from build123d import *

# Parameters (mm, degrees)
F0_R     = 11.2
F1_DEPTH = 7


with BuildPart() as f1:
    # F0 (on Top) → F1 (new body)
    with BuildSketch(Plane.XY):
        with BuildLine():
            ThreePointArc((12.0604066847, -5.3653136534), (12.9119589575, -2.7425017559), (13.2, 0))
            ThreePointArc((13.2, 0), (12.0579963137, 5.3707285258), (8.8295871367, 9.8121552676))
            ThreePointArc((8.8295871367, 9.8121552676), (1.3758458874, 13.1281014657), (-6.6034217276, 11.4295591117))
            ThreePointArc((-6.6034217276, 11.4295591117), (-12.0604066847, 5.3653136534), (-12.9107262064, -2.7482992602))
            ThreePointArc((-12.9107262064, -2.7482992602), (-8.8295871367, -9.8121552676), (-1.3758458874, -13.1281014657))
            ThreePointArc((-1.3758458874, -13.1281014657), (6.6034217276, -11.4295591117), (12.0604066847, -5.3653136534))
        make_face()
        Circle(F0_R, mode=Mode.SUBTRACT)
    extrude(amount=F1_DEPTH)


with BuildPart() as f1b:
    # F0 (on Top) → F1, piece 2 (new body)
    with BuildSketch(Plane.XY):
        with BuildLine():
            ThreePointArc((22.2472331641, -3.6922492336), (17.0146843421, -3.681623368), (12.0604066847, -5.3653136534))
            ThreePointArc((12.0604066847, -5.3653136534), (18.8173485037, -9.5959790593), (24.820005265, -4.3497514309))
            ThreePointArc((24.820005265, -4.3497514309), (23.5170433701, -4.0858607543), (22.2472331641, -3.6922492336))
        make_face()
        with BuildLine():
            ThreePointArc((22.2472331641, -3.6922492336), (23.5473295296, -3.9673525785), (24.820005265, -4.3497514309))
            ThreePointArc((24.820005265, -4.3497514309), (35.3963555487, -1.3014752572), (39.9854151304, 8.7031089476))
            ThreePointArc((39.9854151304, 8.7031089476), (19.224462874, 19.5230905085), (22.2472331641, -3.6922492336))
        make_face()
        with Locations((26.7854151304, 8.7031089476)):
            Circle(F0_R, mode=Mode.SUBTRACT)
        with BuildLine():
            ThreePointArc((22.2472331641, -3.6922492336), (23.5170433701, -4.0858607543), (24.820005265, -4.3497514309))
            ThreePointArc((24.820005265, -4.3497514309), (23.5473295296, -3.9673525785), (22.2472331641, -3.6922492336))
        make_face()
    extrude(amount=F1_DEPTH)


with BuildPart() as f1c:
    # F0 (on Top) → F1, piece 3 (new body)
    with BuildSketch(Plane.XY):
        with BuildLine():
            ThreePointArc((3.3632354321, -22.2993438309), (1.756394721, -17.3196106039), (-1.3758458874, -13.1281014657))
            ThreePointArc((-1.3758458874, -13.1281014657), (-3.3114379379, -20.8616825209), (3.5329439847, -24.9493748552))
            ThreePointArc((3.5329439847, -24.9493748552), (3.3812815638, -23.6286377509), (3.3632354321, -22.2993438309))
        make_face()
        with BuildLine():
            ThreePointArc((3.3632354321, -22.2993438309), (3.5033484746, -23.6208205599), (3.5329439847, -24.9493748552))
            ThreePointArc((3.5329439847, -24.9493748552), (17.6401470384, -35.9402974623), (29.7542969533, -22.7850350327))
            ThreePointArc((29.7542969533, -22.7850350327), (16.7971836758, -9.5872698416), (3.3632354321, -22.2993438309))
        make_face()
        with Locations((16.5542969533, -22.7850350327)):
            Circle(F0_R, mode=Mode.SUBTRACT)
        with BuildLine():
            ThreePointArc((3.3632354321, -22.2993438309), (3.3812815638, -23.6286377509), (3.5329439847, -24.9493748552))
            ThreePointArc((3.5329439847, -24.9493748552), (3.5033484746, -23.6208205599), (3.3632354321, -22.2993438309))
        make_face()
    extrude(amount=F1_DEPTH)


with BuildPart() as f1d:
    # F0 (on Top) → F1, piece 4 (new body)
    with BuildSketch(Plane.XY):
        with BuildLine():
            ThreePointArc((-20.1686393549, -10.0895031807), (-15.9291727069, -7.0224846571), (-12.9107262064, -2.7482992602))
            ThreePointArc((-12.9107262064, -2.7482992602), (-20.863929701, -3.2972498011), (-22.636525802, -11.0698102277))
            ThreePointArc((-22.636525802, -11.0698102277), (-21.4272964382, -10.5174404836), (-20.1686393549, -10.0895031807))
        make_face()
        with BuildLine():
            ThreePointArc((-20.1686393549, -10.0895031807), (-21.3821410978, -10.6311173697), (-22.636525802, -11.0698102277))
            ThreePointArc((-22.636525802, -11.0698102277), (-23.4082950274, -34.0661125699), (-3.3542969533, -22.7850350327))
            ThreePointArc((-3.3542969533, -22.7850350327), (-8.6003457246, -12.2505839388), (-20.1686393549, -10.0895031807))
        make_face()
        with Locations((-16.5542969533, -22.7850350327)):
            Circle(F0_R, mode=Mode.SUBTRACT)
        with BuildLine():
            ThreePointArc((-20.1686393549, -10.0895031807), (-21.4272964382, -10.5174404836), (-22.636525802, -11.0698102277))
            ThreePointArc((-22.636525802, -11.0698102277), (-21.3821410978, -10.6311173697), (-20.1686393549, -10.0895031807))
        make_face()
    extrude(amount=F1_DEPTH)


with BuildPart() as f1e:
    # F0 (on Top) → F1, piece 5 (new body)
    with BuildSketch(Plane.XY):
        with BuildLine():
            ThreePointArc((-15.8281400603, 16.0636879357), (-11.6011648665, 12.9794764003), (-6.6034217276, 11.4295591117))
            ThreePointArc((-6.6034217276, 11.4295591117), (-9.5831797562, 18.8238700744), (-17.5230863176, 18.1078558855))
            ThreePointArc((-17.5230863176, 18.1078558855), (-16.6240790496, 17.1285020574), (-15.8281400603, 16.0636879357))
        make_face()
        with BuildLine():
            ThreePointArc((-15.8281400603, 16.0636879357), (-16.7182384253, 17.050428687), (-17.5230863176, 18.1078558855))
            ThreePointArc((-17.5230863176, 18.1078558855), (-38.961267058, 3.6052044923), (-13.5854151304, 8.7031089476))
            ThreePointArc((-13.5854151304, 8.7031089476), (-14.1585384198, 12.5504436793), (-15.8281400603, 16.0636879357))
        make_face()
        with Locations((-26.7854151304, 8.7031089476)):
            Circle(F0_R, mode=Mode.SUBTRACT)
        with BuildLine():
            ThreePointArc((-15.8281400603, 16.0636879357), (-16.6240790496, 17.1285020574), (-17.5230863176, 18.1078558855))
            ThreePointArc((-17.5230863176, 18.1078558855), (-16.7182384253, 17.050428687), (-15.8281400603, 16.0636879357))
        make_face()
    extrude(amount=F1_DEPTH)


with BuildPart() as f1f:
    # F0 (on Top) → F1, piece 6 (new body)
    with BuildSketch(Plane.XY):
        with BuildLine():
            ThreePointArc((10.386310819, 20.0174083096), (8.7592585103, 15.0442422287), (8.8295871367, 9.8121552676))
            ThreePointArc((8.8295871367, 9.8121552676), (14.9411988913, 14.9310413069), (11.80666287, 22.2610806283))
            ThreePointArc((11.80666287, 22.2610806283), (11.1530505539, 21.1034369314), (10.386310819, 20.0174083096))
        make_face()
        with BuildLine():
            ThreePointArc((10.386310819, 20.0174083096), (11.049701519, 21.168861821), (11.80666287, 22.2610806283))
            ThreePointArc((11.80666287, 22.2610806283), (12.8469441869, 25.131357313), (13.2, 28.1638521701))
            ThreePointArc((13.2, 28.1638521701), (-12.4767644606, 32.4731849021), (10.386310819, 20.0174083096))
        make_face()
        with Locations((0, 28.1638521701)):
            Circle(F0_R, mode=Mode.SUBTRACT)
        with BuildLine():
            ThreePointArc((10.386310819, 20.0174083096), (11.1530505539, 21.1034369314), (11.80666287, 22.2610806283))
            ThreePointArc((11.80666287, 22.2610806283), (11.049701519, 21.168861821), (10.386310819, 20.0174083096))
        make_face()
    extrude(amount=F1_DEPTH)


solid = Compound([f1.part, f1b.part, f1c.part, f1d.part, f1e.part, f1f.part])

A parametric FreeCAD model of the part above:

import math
import FreeCAD as App
import Part
import Sketcher

V = App.Vector
Q = App.Units.Quantity

doc = App.newDocument("Part")
body = doc.addObject("PartDesign::Body", "Body")

# Sketch on XY plane
sketch1 = doc.addObject("Sketcher::SketchObject", "Sketch")
body.addObject(sketch1)
sketch1.AttachmentSupport = (doc.XY_Plane, [""])
sketch1.MapMode = "FlatFace"
sketch1.addGeometry([
    Part.ArcOfCircle(Part.Circle(V(0, 0, 0), V(0, 0, 1), 13), math.radians(-24), math.radians(0)),  # 0
    Part.ArcOfCircle(Part.Circle(V(0, 0, 0), V(0, 0, 1), 13), math.radians(0), math.radians(48)),  # 1
    Part.ArcOfCircle(Part.Circle(V(0, 0, 0), V(0, 0, 1), 13), math.radians(48), math.radians(120)),  # 2
    Part.ArcOfCircle(Part.Circle(V(0, 0, 0), V(0, 0, 1), 13), math.radians(120), math.radians(192)),  # 3
    Part.ArcOfCircle(Part.Circle(V(0, 0, 0), V(0, 0, 1), 13), math.radians(-168), math.radians(-96)),  # 4
    Part.ArcOfCircle(Part.Circle(V(0, 0, 0), V(0, 0, 1), 13), math.radians(-96), math.radians(-24)),  # 5
    Part.Circle(V(0, 0, 0), V(0, 0, 1), 11),  # 6
], False)
sketch1.addConstraint([
    Sketcher.Constraint("Tangent", 0, 2, 1, 1),
    Sketcher.Constraint("Tangent", 1, 2, 2, 1),
    Sketcher.Constraint("Tangent", 2, 2, 3, 1),
    Sketcher.Constraint("Tangent", 3, 2, 4, 1),
    Sketcher.Constraint("Tangent", 4, 2, 5, 1),
    Sketcher.Constraint("Tangent", 5, 2, 0, 1),
    Sketcher.Constraint("Coincident", 0, 3, -1, 1),
    Sketcher.Constraint("Coincident", 2, 3, -1, 1),
    Sketcher.Constraint("Coincident", 6, 3, -1, 1),
    Sketcher.Constraint("Equal", 2, 3),
    Sketcher.Constraint("PointOnObject", 0, 2, -1),
    Sketcher.Constraint("Diameter", 6, Q("22.4 mm")),
    Sketcher.Constraint("Radius", 0, Q("13.2 mm")),
    Sketcher.Constraint("DistanceY", 3, 2, -1, 1, Q("2.748299 mm")),
    Sketcher.Constraint("DistanceY", 4, 2, -1, 1, Q("13.128101 mm")),
    Sketcher.Constraint("DistanceX", 2, 2, -1, 1, Q("6.603422 mm")),
    Sketcher.Constraint("DistanceX", -1, 1, 1, 2, Q("8.829587 mm")),
    Sketcher.Constraint("DistanceX", -1, 1, 5, 2, Q("12.060407 mm")),
])
pad1 = doc.addObject("PartDesign::Pad", "Pad")
body.addObject(pad1)
pad1.Profile = sketch1
pad1.Length = 7
body2 = doc.addObject("PartDesign::Body", "Body001")

# Sketch on XY plane
sketch2 = doc.addObject("Sketcher::SketchObject", "Sketch001")
body2.addObject(sketch2)
sketch2.AttachmentSupport = (doc.getObject("XY_Plane001"), [""])
sketch2.MapMode = "FlatFace"
sketch2.addGeometry([
    Part.ArcOfCircle(Part.Circle(V(20, -19, 0), V(0, 0, 1), 16), math.radians(80), math.radians(118)),  # 0
    Part.ArcOfCircle(Part.Circle(V(18, -3, 0), V(0, 0, 1), 7), math.radians(-159), math.radians(-12)),  # 1
    Part.ArcOfCircle(Part.Circle(V(27, 9, 0), V(0, 0, 1), 13), math.radians(-99), math.radians(0)),  # 2
    Part.ArcOfCircle(Part.Circle(V(27, 9, 0), V(0, 0, 1), 13), math.radians(0), math.radians(250)),  # 3
    Part.Circle(V(27, 9, 0), V(0, 0, 1), 11),  # 4
], False)
sketch2.addConstraint([
    Sketcher.Constraint("Coincident", 0, 2, 1, 1),
    Sketcher.Constraint("Coincident", 1, 2, 2, 1),
    Sketcher.Constraint("Tangent", 2, 2, 3, 1),
    Sketcher.Constraint("Coincident", 3, 2, 0, 1),
    Sketcher.Constraint("Coincident", 4, 3, 2, 3),
    Sketcher.Constraint("Equal", 2, 3),
    Sketcher.Constraint("Horizontal", 4, 3, 2, 2),
    Sketcher.Constraint("Diameter", 4, Q("22.4 mm")),
    Sketcher.Constraint("Radius", 2, Q("13.2 mm")),
    Sketcher.Constraint("Radius", 0, Q("15.946088 mm")),
    Sketcher.Constraint("Radius", 1, Q("6.685149 mm")),
    Sketcher.Constraint("DistanceY", 0, 3, -1, 1, Q("19.416901 mm")),
    Sketcher.Constraint("DistanceX", 0, 3, 2, 3, Q("7.1864 mm")),
    Sketcher.Constraint("DistanceX", 0, 2, 1, 2, Q("12.759599 mm")),
    Sketcher.Constraint("DistanceX", -1, 1, 1, 3, Q("18.286941 mm")),
    Sketcher.Constraint("DistanceY", -1, 1, 2, 3, Q("8.703109 mm")),
    Sketcher.Constraint("DistanceY", 1, 2, -1, 1, Q("4.349751 mm")),
])
pad2 = doc.addObject("PartDesign::Pad", "Pad001")
body2.addObject(pad2)
pad2.Profile = sketch2
pad2.Length = 7
body3 = doc.addObject("PartDesign::Body", "Body002")

# Sketch on XY plane
sketch3 = doc.addObject("Sketcher::SketchObject", "Sketch002")
body3.addObject(sketch3)
sketch3.AttachmentSupport = (doc.getObject("XY_Plane002"), [""])
sketch3.MapMode = "FlatFace"
sketch3.addGeometry([
    Part.ArcOfCircle(Part.Circle(V(-12, -25, 0), V(0, 0, 1), 16), math.radians(8), math.radians(46)),  # 0
    Part.ArcOfCircle(Part.Circle(V(3, -18, 0), V(0, 0, 1), 7), math.radians(129), math.radians(276)),  # 1
    Part.ArcOfCircle(Part.Circle(V(17, -23, 0), V(0, 0, 1), 13), math.radians(-171), math.radians(0)),  # 2
    Part.ArcOfCircle(Part.Circle(V(17, -23, 0), V(0, 0, 1), 13), math.radians(0), math.radians(178)),  # 3
    Part.Circle(V(17, -23, 0), V(0, 0, 1), 11),  # 4
], False)
sketch3.addConstraint([
    Sketcher.Constraint("Coincident", 0, 2, 1, 1),
    Sketcher.Constraint("Coincident", 1, 2, 2, 1),
    Sketcher.Constraint("Tangent", 2, 2, 3, 1),
    Sketcher.Constraint("Coincident", 3, 2, 0, 1),
    Sketcher.Constraint("Coincident", 4, 3, 2, 3),
    Sketcher.Constraint("Equal", 2, 3),
    Sketcher.Constraint("Horizontal", 4, 3, 2, 2),
    Sketcher.Constraint("Diameter", 4, Q("22.4 mm")),
    Sketcher.Constraint("Radius", 2, Q("13.2 mm")),
    Sketcher.Constraint("Radius", 0, Q("15.946088 mm")),
    Sketcher.Constraint("Radius", 1, Q("6.685149 mm")),
    Sketcher.Constraint("DistanceY", 0, 3, 1, 3, Q("6.342001 mm")),
    Sketcher.Constraint("DistanceY", 0, 2, -1, 1, Q("13.128101 mm")),
    Sketcher.Constraint("DistanceX", 0, 3, -1, 1, Q("12.410141 mm")),
    Sketcher.Constraint("DistanceX", -1, 1, 1, 3, Q("2.862568 mm")),
    Sketcher.Constraint("DistanceX", 1, 3, 2, 3, Q("13.691729 mm")),
    Sketcher.Constraint("DistanceY", 2, 3, 1, 3, Q("4.487112 mm")),
])
pad3 = doc.addObject("PartDesign::Pad", "Pad002")
body3.addObject(pad3)
pad3.Profile = sketch3
pad3.Length = 7
body4 = doc.addObject("PartDesign::Body", "Body003")

# Sketch on XY plane
sketch4 = doc.addObject("Sketcher::SketchObject", "Sketch003")
body4.addObject(sketch4)
sketch4.AttachmentSupport = (doc.getObject("XY_Plane003"), [""])
sketch4.MapMode = "FlatFace"
sketch4.addGeometry([
    Part.ArcOfCircle(Part.Circle(V(-27, 4, 0), V(0, 0, 1), 16), math.radians(-64), math.radians(-26)),  # 0
    Part.ArcOfCircle(Part.Circle(V(-17, -8, 0), V(0, 0, 1), 7), math.radians(57), math.radians(204)),  # 1
    Part.ArcOfCircle(Part.Circle(V(-17, -23, 0), V(0, 0, 1), 13), math.radians(117), math.radians(360)),  # 2
    Part.ArcOfCircle(Part.Circle(V(-17, -23, 0), V(0, 0, 1), 13), math.radians(0), math.radians(106)),  # 3
    Part.Circle(V(-17, -23, 0), V(0, 0, 1), 11),  # 4
], False)
sketch4.addConstraint([
    Sketcher.Constraint("Coincident", 0, 2, 1, 1),
    Sketcher.Constraint("Coincident", 1, 2, 2, 1),
    Sketcher.Constraint("Tangent", 2, 2, 3, 1),
    Sketcher.Constraint("Coincident", 3, 2, 0, 1),
    Sketcher.Constraint("Coincident", 4, 3, 2, 3),
    Sketcher.Constraint("Equal", 2, 3),
    Sketcher.Constraint("Horizontal", 4, 3, 2, 2),
    Sketcher.Constraint("Diameter", 4, Q("22.4 mm")),
    Sketcher.Constraint("Radius", 2, Q("13.2 mm")),
    Sketcher.Constraint("Radius", 0, Q("15.946088 mm")),
    Sketcher.Constraint("Radius", 1, Q("6.685149 mm")),
    Sketcher.Constraint("DistanceY", 0, 2, -1, 1, Q("2.748299 mm")),
    Sketcher.Constraint("DistanceY", 2, 3, 1, 3, Q("14.408202 mm")),
    Sketcher.Constraint("DistanceX", 1, 2, 0, 2, Q("9.7258 mm")),
    Sketcher.Constraint("DistanceY", -1, 1, 0, 3, Q("4.188591 mm")),
    Sketcher.Constraint("DistanceY", 1, 2, -1, 1, Q("11.06981 mm")),
    Sketcher.Constraint("DistanceX", 3, 2, -1, 1, Q("20.168639 mm")),
])
pad4 = doc.addObject("PartDesign::Pad", "Pad003")
body4.addObject(pad4)
pad4.Profile = sketch4
pad4.Length = 7
body5 = doc.addObject("PartDesign::Body", "Body004")

# Sketch on XY plane
sketch5 = doc.addObject("Sketcher::SketchObject", "Sketch004")
body5.addObject(sketch5)
sketch5.AttachmentSupport = (doc.getObject("XY_Plane004"), [""])
sketch5.MapMode = "FlatFace"
sketch5.addGeometry([
    Part.ArcOfCircle(Part.Circle(V(-4, 27, 0), V(0, 0, 1), 16), math.radians(-136), math.radians(-98)),  # 0
    Part.ArcOfCircle(Part.Circle(V(-13, 13, 0), V(0, 0, 1), 7), math.radians(-15), math.radians(132)),  # 1
    Part.ArcOfCircle(Part.Circle(V(-27, 9, 0), V(0, 0, 1), 13), math.radians(45), math.radians(360)),  # 2
    Part.ArcOfCircle(Part.Circle(V(-27, 9, 0), V(0, 0, 1), 13), math.radians(0), math.radians(34)),  # 3
    Part.Circle(V(-27, 9, 0), V(0, 0, 1), 11),  # 4
], False)
sketch5.addConstraint([
    Sketcher.Constraint("Coincident", 0, 2, 1, 1),
    Sketcher.Constraint("Coincident", 1, 2, 2, 1),
    Sketcher.Constraint("Tangent", 2, 2, 3, 1),
    Sketcher.Constraint("Coincident", 3, 2, 0, 1),
    Sketcher.Constraint("Coincident", 4, 3, 2, 3),
    Sketcher.Constraint("Equal", 2, 3),
    Sketcher.Constraint("Horizontal", 4, 3, 2, 2),
    Sketcher.Constraint("Diameter", 4, Q("22.4 mm")),
    Sketcher.Constraint("Radius", 2, Q("13.2 mm")),
    Sketcher.Constraint("Radius", 0, Q("15.946088 mm")),
    Sketcher.Constraint("Radius", 1, Q("6.685149 mm")),
    Sketcher.Constraint("DistanceX", 2, 3, 1, 3, Q("13.714299 mm")),
    Sketcher.Constraint("DistanceY", 1, 3, 1, 2, Q("4.9871 mm")),
    Sketcher.Constraint("DistanceX", 0, 3, -1, 1, Q("4.442969 mm")),
    Sketcher.Constraint("DistanceY", -1, 1, 2, 3, Q("8.703109 mm")),
    Sketcher.Constraint("DistanceX", 0, 2, -1, 1, Q("6.603422 mm")),
    Sketcher.Constraint("DistanceY", -1, 1, 0, 2, Q("11.429559 mm")),
])
pad5 = doc.addObject("PartDesign::Pad", "Pad004")
body5.addObject(pad5)
pad5.Profile = sketch5
pad5.Length = 7
body6 = doc.addObject("PartDesign::Body", "Body005")

# Sketch on XY plane
sketch6 = doc.addObject("Sketcher::SketchObject", "Sketch005")
body6.addObject(sketch6)
sketch6.AttachmentSupport = (doc.getObject("XY_Plane005"), [""])
sketch6.MapMode = "FlatFace"
sketch6.addGeometry([
    Part.ArcOfCircle(Part.Circle(V(25, 13, 0), V(0, 0, 1), 16), math.radians(152), math.radians(190)),  # 0
    Part.ArcOfCircle(Part.Circle(V(8, 16, 0), V(0, 0, 1), 7), math.radians(-87), math.radians(60)),  # 1
    Part.ArcOfCircle(Part.Circle(V(0, 28, 0), V(0, 0, 1), 13), math.radians(-27), math.radians(0)),  # 2
    Part.ArcOfCircle(Part.Circle(V(0, 28, 0), V(0, 0, 1), 13), math.radians(0), math.radians(322)),  # 3
    Part.Circle(V(0, 28, 0), V(0, 0, 1), 11),  # 4
], False)
sketch6.addConstraint([
    Sketcher.Constraint("Coincident", 0, 2, 1, 1),
    Sketcher.Constraint("Coincident", 1, 2, 2, 1),
    Sketcher.Constraint("Tangent", 2, 2, 3, 1),
    Sketcher.Constraint("Coincident", 3, 2, 0, 1),
    Sketcher.Constraint("Coincident", 4, 3, 2, 3),
    Sketcher.Constraint("Equal", 2, 3),
    Sketcher.Constraint("PointOnObject", 2, 3, -2),
    Sketcher.Constraint("Horizontal", 4, 3, 2, 2),
    Sketcher.Constraint("Diameter", 4, Q("22.4 mm")),
    Sketcher.Constraint("Radius", 2, Q("13.2 mm")),
    Sketcher.Constraint("Radius", 0, Q("15.946088 mm")),
    Sketcher.Constraint("Radius", 1, Q("6.685149 mm")),
    Sketcher.Constraint("DistanceX", -1, 1, 0, 3, Q("24.522999 mm")),
    Sketcher.Constraint("DistanceY", -1, 1, 0, 3, Q("12.639619 mm")),
    Sketcher.Constraint("DistanceY", -1, 1, 1, 2, Q("22.261081 mm")),
    Sketcher.Constraint("DistanceX", -1, 1, 3, 2, Q("10.386311 mm")),
    Sketcher.Constraint("DistanceY", 0, 2, 1, 3, Q("6.673751 mm")),
])
pad6 = doc.addObject("PartDesign::Pad", "Pad005")
body6.addObject(pad6)
pad6.Profile = sketch6
pad6.Length = 7

doc.recompute()
